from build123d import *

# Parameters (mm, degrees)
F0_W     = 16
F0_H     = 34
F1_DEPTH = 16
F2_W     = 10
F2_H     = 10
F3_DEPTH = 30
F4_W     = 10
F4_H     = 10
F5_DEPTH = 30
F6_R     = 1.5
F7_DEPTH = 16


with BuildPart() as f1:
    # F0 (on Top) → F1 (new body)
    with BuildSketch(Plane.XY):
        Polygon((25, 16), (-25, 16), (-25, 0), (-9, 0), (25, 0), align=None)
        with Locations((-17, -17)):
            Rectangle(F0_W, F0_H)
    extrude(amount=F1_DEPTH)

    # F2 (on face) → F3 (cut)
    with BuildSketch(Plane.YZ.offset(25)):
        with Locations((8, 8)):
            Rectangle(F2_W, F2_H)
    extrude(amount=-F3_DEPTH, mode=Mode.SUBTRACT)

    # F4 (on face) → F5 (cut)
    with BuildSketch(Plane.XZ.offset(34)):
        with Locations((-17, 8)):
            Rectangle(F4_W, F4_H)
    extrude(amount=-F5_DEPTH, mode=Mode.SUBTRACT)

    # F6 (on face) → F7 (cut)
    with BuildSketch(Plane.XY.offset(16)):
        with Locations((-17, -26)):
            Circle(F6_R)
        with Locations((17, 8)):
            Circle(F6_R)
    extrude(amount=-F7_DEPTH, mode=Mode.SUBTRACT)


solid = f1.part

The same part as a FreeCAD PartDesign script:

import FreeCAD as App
import Part
import Sketcher
Q = App.Units.Quantity

doc = App.newDocument("Part")
body = doc.addObject("PartDesign::Body", "Body")

# Sketch on XY plane
sketch1 = body.newObject("Sketcher::SketchObject", "Sketch")
sketch1.AttachmentSupport = (doc.getObject("XY_Plane"), [""])
sketch1.MapMode = "FlatFace"
sketch1.addGeometry([
    Part.LineSegment(App.Vector(25, 16, 0), App.Vector(-25, 16, 0)),  # 0
    Part.LineSegment(App.Vector(-25, 16, 0), App.Vector(-25, -34, 0)),  # 1
    Part.LineSegment(App.Vector(-25, -34, 0), App.Vector(-9, -34, 0)),  # 2
    Part.LineSegment(App.Vector(-9, -34, 0), App.Vector(-9, 0, 0)),  # 3
    Part.LineSegment(App.Vector(-9, 0, 0), App.Vector(25, 0, 0)),  # 4
    Part.LineSegment(App.Vector(25, 0, 0), App.Vector(25, 16, 0)),  # 5
], False)
sketch1.addConstraint([
    Sketcher.Constraint("Coincident", 0, 2, 1, 1),
    Sketcher.Constraint("Coincident", 1, 2, 2, 1),
    Sketcher.Constraint("Coincident", 2, 2, 3, 1),
    Sketcher.Constraint("Coincident", 3, 2, 4, 1),
    Sketcher.Constraint("Coincident", 4, 2, 5, 1),
    Sketcher.Constraint("Coincident", 5, 2, 0, 1),
    Sketcher.Constraint("Horizontal", 0),
    Sketcher.Constraint("Vertical", 1),
    Sketcher.Constraint("Horizontal", 2),
    Sketcher.Constraint("Vertical", 3),
    Sketcher.Constraint("Horizontal", 4),
    Sketcher.Constraint("Vertical", 5),
    Sketcher.Constraint("PointOnObject", 3, 2, -1),
    Sketcher.Constraint("Equal", 0, 1),
    Sketcher.Constraint("Equal", 4, 3),
    Sketcher.Constraint("DistanceX", 0, 2, 0, 1, Q("50 mm")),
    Sketcher.Constraint("DistanceX", 2, 1, 2, 2, Q("16 mm")),
    Sketcher.Constraint("DistanceX", 0, 2, -1, 1, Q("25 mm")),
])
pad1 = body.newObject("PartDesign::Pad", "Pad")
pad1.Profile = sketch1
pad1.Length = 16

# Sketch on YZ plane
sketch2 = body.newObject("Sketcher::SketchObject", "Sketch001")
sketch2.AttachmentSupport = (doc.getObject("YZ_Plane"), [""])
sketch2.MapMode = "FlatFace"
sketch2.AttachmentOffset = App.Placement(App.Vector(0, 0, 25), App.Rotation())
sketch2.addGeometry([
    Part.LineSegment(App.Vector(3, 13, 0), App.Vector(3, 3, 0)),
    Part.LineSegment(App.Vector(3, 3, 0), App.Vector(13, 3, 0)),
    Part.LineSegment(App.Vector(13, 3, 0), App.Vector(13, 13, 0)),
    Part.LineSegment(App.Vector(13, 13, 0), App.Vector(3, 13, 0)),
], False)
sketch2.addConstraint([
    Sketcher.Constraint("Coincident", 0, 2, 1, 1),
    Sketcher.Constraint("Coincident", 1, 2, 2, 1),
    Sketcher.Constraint("Coincident", 2, 2, 3, 1),
    Sketcher.Constraint("Coincident", 3, 2, 0, 1),
    Sketcher.Constraint("Vertical", 0),
    Sketcher.Constraint("Horizontal", 1),
    Sketcher.Constraint("Vertical", 2),
    Sketcher.Constraint("Horizontal", 3),
    Sketcher.Constraint("Equal", 3, 0),
    Sketcher.Constraint("DistanceX", 1, 1, 1, 2, Q("10 mm")),
    Sketcher.Constraint("DistanceX", -1, 1, 0, 2, Q("3 mm")),
    Sketcher.Constraint("DistanceY", -1, 1, 0, 2, Q("3 mm")),
])
pocket1 = body.newObject("PartDesign::Pocket", "Pocket")
pocket1.Profile = sketch2
pocket1.Length = 30

# Sketch on XZ plane
sketch3 = body.newObject("Sketcher::SketchObject", "Sketch002")
sketch3.AttachmentSupport = (doc.getObject("XZ_Plane"), [""])
sketch3.MapMode = "FlatFace"
sketch3.AttachmentOffset = App.Placement(App.Vector(0, 0, 34), App.Rotation())
sketch3.addGeometry([
    Part.LineSegment(App.Vector(-22, 13, 0), App.Vector(-22, 3, 0)),
    Part.LineSegment(App.Vector(-22, 3, 0), App.Vector(-12, 3, 0)),
    Part.LineSegment(App.Vector(-12, 3, 0), App.Vector(-12, 13, 0)),
    Part.LineSegment(App.Vector(-12, 13, 0), App.Vector(-22, 13, 0)),
], False)
sketch3.addConstraint([
    Sketcher.Constraint("Coincident", 0, 2, 1, 1),
    Sketcher.Constraint("Coincident", 1, 2, 2, 1),
    Sketcher.Constraint("Coincident", 2, 2, 3, 1),
    Sketcher.Constraint("Coincident", 3, 2, 0, 1),
    Sketcher.Constraint("Vertical", 0),
    Sketcher.Constraint("Horizontal", 1),
    Sketcher.Constraint("Vertical", 2),
    Sketcher.Constraint("Horizontal", 3),
    Sketcher.Constraint("Equal", 3, 0),
    Sketcher.Constraint("DistanceX", 1, 1, 1, 2, Q("10 mm")),
    Sketcher.Constraint("DistanceX", 0, 2, -1, 1, Q("22 mm")),
    Sketcher.Constraint("DistanceY", -1, 1, 0, 2, Q("3 mm")),
])
pocket2 = body.newObject("PartDesign::Pocket", "Pocket001")
pocket2.Profile = sketch3
pocket2.Length = 30

# Sketch on XY plane
sketch4 = body.newObject("Sketcher::SketchObject", "Sketch003")
sketch4.AttachmentSupport = (doc.getObject("XY_Plane"), [""])
sketch4.MapMode = "FlatFace"
sketch4.AttachmentOffset = App.Placement(App.Vector(0, 0, 16), App.Rotation())
sketch4.addGeometry([
    Part.Circle(App.Vector(-17, -26, 0), App.Vector(0, 0, 1), 1.5),
    Part.Circle(App.Vector(17, 8, 0), App.Vector(0, 0, 1), 1.5),
], False)
sketch4.addConstraint([
    Sketcher.Constraint("Equal", 0, 1),
    Sketcher.Constraint("Diameter", 0, Q("3 mm")),
    Sketcher.Constraint("DistanceX", 0, 3, -1, 1, Q("17 mm")),
    Sketcher.Constraint("DistanceY", 0, 3, -1, 1, Q("26 mm")),
    Sketcher.Constraint("DistanceX", -1, 1, 1, 3, Q("17 mm")),
    Sketcher.Constraint("DistanceY", -1, 1, 1, 3, Q("8 mm")),
])
pocket3 = body.newObject("PartDesign::Pocket", "Pocket002")
pocket3.Profile = sketch4
pocket3.Length = 16

doc.recompute()
